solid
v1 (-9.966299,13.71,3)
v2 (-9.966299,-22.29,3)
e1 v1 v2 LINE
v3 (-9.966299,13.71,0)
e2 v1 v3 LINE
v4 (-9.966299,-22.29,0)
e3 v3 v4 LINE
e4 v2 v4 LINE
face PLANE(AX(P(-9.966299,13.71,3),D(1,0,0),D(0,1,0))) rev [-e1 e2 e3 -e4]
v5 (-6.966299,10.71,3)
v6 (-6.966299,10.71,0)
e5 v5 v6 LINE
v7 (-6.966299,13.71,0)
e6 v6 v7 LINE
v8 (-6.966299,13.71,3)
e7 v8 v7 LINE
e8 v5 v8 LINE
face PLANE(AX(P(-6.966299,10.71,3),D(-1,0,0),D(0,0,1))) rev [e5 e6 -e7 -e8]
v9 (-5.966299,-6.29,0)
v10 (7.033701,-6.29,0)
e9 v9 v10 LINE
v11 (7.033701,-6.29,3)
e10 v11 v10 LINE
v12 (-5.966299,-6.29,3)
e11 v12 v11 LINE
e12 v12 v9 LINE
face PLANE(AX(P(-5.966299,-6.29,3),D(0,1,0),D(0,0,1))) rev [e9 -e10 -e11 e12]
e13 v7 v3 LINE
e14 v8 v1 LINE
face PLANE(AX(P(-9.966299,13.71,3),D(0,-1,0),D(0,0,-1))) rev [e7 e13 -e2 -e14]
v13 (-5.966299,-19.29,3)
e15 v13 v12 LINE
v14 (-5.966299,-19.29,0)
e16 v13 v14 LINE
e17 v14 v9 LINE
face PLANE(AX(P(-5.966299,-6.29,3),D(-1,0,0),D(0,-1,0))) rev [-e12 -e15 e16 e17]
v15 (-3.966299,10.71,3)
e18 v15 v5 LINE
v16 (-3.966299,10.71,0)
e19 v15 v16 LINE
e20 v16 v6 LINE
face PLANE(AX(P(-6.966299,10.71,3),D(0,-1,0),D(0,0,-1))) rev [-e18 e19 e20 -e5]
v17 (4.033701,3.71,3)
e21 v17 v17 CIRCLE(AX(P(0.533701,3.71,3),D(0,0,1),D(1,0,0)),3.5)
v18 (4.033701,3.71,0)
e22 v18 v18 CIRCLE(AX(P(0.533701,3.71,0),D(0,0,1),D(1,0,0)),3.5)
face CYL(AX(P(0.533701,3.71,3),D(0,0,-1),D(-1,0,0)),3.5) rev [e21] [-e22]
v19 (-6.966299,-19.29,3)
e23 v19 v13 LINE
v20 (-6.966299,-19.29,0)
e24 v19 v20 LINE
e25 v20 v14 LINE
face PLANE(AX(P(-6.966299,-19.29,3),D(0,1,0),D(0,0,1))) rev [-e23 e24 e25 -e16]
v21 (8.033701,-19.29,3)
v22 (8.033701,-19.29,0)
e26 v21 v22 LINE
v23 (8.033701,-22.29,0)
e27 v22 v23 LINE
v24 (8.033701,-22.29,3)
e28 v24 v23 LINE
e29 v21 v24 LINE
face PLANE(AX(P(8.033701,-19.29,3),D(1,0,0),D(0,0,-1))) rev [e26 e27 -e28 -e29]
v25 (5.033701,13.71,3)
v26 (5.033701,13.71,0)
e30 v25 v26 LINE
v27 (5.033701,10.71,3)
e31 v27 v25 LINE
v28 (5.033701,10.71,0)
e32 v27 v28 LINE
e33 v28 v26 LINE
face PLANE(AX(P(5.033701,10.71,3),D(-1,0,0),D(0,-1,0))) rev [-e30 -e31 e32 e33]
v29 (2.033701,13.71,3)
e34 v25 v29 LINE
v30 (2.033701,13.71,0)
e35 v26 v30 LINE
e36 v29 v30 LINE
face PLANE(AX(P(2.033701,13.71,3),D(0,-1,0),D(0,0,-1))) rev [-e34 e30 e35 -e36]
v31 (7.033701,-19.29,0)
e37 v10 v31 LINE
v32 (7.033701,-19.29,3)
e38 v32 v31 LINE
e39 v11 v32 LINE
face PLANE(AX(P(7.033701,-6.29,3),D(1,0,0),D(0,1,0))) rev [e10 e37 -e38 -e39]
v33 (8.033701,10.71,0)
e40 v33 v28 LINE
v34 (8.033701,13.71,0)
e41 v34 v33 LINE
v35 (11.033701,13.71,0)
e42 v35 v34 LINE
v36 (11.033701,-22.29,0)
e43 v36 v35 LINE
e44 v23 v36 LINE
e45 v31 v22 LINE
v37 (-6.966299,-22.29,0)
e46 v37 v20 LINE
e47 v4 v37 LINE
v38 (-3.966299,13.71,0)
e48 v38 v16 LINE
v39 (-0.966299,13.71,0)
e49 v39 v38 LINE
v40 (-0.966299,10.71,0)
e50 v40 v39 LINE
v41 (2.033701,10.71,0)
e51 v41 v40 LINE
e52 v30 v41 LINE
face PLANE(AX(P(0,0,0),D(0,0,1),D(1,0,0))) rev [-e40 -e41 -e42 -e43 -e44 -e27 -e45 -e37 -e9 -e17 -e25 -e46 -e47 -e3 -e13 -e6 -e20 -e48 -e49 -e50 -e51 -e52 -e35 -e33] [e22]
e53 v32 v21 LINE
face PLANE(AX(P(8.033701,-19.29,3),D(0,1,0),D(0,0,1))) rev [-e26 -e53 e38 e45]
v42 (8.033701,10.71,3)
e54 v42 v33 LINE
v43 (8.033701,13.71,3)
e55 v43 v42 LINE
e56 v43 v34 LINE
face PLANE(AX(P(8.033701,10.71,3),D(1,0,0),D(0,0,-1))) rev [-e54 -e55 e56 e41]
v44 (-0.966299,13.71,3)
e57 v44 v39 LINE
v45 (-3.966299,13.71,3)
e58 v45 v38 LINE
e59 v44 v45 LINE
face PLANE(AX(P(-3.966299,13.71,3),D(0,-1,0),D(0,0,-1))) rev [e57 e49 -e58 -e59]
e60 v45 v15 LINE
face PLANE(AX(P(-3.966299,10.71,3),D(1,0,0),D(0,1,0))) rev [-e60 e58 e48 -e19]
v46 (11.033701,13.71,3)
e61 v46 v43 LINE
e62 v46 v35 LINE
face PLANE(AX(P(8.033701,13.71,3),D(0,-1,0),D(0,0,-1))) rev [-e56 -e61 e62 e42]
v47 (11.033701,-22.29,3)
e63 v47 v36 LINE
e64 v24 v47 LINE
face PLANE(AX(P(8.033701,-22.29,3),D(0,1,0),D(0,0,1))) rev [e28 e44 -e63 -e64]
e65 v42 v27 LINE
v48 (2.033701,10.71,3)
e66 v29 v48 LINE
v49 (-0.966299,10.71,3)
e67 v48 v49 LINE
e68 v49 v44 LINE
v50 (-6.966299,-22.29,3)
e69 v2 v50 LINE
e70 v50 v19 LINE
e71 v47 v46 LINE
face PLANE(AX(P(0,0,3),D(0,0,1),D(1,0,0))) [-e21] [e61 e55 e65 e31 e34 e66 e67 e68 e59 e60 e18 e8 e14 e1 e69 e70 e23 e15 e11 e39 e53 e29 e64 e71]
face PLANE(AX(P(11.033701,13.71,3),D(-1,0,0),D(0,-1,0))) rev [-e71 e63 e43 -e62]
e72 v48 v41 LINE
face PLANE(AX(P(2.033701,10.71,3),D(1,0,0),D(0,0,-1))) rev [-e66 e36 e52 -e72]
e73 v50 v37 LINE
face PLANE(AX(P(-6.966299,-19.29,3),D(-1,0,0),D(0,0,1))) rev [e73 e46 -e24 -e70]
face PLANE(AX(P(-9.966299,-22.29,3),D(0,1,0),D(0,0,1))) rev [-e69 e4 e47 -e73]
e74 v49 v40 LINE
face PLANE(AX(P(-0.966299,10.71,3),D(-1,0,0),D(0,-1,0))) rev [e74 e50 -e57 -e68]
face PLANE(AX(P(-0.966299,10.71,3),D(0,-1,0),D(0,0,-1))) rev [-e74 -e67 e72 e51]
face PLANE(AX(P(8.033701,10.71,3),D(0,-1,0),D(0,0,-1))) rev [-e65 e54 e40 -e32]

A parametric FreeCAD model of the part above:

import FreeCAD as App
import Part
import Sketcher
from FreeCAD import Vector
Q = App.Units.Quantity

doc = App.newDocument("Part")
body = doc.addObject("PartDesign::Body", "Body")

sketch1 = doc.addObject("Sketcher::SketchObject", "Sketch")
body.addObject(sketch1)
sketch1.AttachmentSupport = (doc.XY_Plane, [""])
sketch1.MapMode = "FlatFace"
sketch1.addGeometry([
    Part.LineSegment(Vector(-6.966299, 13.71, 0), Vector(-9.966299, 13.71, 0)),
    Part.LineSegment(Vector(-9.966299, 13.71, 0), Vector(-9.966299, -22.29, 0)),
    Part.LineSegment(Vector(-9.966299, -22.29, 0), Vector(-6.966299, -22.29, 0)),
    Part.LineSegment(Vector(-6.966299, -22.29, 0), Vector(-6.966299, -19.29, 0)),
    Part.LineSegment(Vector(-6.966299, -19.29, 0), Vector(-5.966299, -19.29, 0)),
    Part.LineSegment(Vector(-5.966299, -19.29, 0), Vector(-5.966299, -6.29, 0)),
    Part.LineSegment(Vector(-5.966299, -6.29, 0), Vector(7.033701, -6.29, 0)),
    Part.LineSegment(Vector(7.033701, -6.29, 0), Vector(7.033701, -19.29, 0)),
    Part.LineSegment(Vector(7.033701, -19.29, 0), Vector(8.033701, -19.29, 0)),
    Part.LineSegment(Vector(8.033701, -19.29, 0), Vector(8.033701, -22.29, 0)),
    Part.LineSegment(Vector(8.033701, -22.29, 0), Vector(11.033701, -22.29, 0)),
    Part.LineSegment(Vector(11.033701, -22.29, 0), Vector(11.033701, 13.71, 0)),
    Part.LineSegment(Vector(11.033701, 13.71, 0), Vector(8.033701, 13.71, 0)),
    Part.LineSegment(Vector(8.033701, 13.71, 0), Vector(8.033701, 10.71, 0)),
    Part.LineSegment(Vector(8.033701, 10.71, 0), Vector(5.033701, 10.71, 0)),
    Part.LineSegment(Vector(5.033701, 10.71, 0), Vector(5.033701, 13.71, 0)),
    Part.LineSegment(Vector(5.033701, 13.71, 0), Vector(2.033701, 13.71, 0)),
    Part.LineSegment(Vector(2.033701, 13.71, 0), Vector(2.033701, 10.71, 0)),
    Part.LineSegment(Vector(2.033701, 10.71, 0), Vector(-0.966299, 10.71, 0)),
    Part.LineSegment(Vector(-0.966299, 10.71, 0), Vector(-0.966299, 13.71, 0)),
    Part.LineSegment(Vector(-0.966299, 13.71, 0), Vector(-3.966299, 13.71, 0)),
    Part.LineSegment(Vector(-3.966299, 13.71, 0), Vector(-3.966299, 10.71, 0)),
    Part.LineSegment(Vector(-3.966299, 10.71, 0), Vector(-6.966299, 10.71, 0)),
    Part.LineSegment(Vector(-6.966299, 10.71, 0), Vector(-6.966299, 13.71, 0)),
    Part.Circle(Vector(0.533701, 3.71, 0), Vector(0, 0, 1), 3.5),
], False)
sketch1.addConstraint([
    Sketcher.Constraint("Coincident", 0, 2, 1, 1),
    Sketcher.Constraint("Coincident", 1, 2, 2, 1),
    Sketcher.Constraint("Coincident", 2, 2, 3, 1),
    Sketcher.Constraint("Coincident", 3, 2, 4, 1),
    Sketcher.Constraint("Coincident", 4, 2, 5, 1),
    Sketcher.Constraint("Coincident", 5, 2, 6, 1),
    Sketcher.Constraint("Coincident", 6, 2, 7, 1),
    Sketcher.Constraint("Coincident", 7, 2, 8, 1),
    Sketcher.Constraint("Coincident", 8, 2, 9, 1),
    Sketcher.Constraint("Coincident", 9, 2, 10, 1),
    Sketcher.Constraint("Coincident", 10, 2, 11, 1),
    Sketcher.Constraint("Coincident", 11, 2, 12, 1),
    Sketcher.Constraint("Coincident", 12, 2, 13, 1),
    Sketcher.Constraint("Coincident", 13, 2, 14, 1),
    Sketcher.Constraint("Coincident", 14, 2, 15, 1),
    Sketcher.Constraint("Coincident", 15, 2, 16, 1),
    Sketcher.Constraint("Coincident", 16, 2, 17, 1),
    Sketcher.Constraint("Coincident", 17, 2, 18, 1),
    Sketcher.Constraint("Coincident", 18, 2, 19, 1),
    Sketcher.Constraint("Coincident", 19, 2, 20, 1),
    Sketcher.Constraint("Coincident", 20, 2, 21, 1),
    Sketcher.Constraint("Coincident", 21, 2, 22, 1),
    Sketcher.Constraint("Coincident", 22, 2, 23, 1),
    Sketcher.Constraint("Coincident", 23, 2, 0, 1),
    Sketcher.Constraint("Horizontal", 0),
    Sketcher.Constraint("Vertical", 1),
    Sketcher.Constraint("Horizontal", 2),
    Sketcher.Constraint("Vertical", 3),
    Sketcher.Constraint("Horizontal", 4),
    Sketcher.Constraint("Vertical", 5),
    Sketcher.Constraint("Horizontal", 6),
    Sketcher.Constraint("Vertical", 7),
    Sketcher.Constraint("Horizontal", 8),
    Sketcher.Constraint("Vertical", 9),
    Sketcher.Constraint("Horizontal", 10),
    Sketcher.Constraint("Vertical", 11),
    Sketcher.Constraint("Horizontal", 12),
    Sketcher.Constraint("Vertical", 13),
    Sketcher.Constraint("Horizontal", 14),
    Sketcher.Constraint("Vertical", 15),
    Sketcher.Constraint("Horizontal", 16),
    Sketcher.Constraint("Vertical", 17),
    Sketcher.Constraint("Horizontal", 18),
    Sketcher.Constraint("Vertical", 19),
    Sketcher.Constraint("Horizontal", 20),
    Sketcher.Constraint("Vertical", 21),
    Sketcher.Constraint("Horizontal", 22),
    Sketcher.Constraint("Vertical", 23),
    Sketcher.Constraint("Horizontal", 4, 2, 7, 2),
    Sketcher.Constraint("Horizontal", 2, 2, 9, 2),
    Sketcher.Constraint("Horizontal", 0, 2, 11, 2),
    Sketcher.Constraint("Horizontal", 12, 2, 15, 2),
    Sketcher.Constraint("Horizontal", 14, 2, 17, 2),
    Sketcher.Constraint("Horizontal", 16, 2, 19, 2),
    Sketcher.Constraint("Horizontal", 18, 2, 21, 2),
    Sketcher.Constraint("Vertical", 9, 2, 12, 2),
    Sketcher.Constraint("Vertical", 3, 2, 22, 2),
    Sketcher.Constraint("Equal", 4, 8),
    Sketcher.Constraint("Equal", 2, 10),
    Sketcher.Constraint("Equal", 12, 14),
    Sketcher.Constraint("Equal", 14, 16),
    Sketcher.Constraint("Equal", 16, 18),
    Sketcher.Constraint("Equal", 18, 20),
    Sketcher.Constraint("Equal", 20, 22),
    Sketcher.Constraint("Equal", 22, 3),
    Sketcher.Constraint("Equal", 6, 5),
    Sketcher.Constraint("Equal", 9, 13),
    Sketcher.Constraint("Diameter", 24, Q("7 mm")),
    Sketcher.Constraint("DistanceX", 0, 2, 0, 1, Q("3 mm")),
    Sketcher.Constraint("DistanceX", 4, 1, 4, 2, Q("1 mm")),
    Sketcher.Constraint("DistanceY", 1, 2, 1, 1, Q("36 mm")),
    Sketcher.Constraint("DistanceY", 24, 3, 0, 2, Q("10 mm")),
    Sketcher.Constraint("DistanceX", 0, 2, 24, 3, Q("10.5 mm")),
    Sketcher.Constraint("DistanceY", -1, 1, 24, 3, Q("3.71 mm")),
    Sketcher.Constraint("DistanceX", -1, 1, 24, 3, Q("0.533701 mm")),
])
pad1 = doc.addObject("PartDesign::Pad", "Pad")
body.addObject(pad1)
pad1.Profile = sketch1
pad1.Length = 3

doc.recompute()
